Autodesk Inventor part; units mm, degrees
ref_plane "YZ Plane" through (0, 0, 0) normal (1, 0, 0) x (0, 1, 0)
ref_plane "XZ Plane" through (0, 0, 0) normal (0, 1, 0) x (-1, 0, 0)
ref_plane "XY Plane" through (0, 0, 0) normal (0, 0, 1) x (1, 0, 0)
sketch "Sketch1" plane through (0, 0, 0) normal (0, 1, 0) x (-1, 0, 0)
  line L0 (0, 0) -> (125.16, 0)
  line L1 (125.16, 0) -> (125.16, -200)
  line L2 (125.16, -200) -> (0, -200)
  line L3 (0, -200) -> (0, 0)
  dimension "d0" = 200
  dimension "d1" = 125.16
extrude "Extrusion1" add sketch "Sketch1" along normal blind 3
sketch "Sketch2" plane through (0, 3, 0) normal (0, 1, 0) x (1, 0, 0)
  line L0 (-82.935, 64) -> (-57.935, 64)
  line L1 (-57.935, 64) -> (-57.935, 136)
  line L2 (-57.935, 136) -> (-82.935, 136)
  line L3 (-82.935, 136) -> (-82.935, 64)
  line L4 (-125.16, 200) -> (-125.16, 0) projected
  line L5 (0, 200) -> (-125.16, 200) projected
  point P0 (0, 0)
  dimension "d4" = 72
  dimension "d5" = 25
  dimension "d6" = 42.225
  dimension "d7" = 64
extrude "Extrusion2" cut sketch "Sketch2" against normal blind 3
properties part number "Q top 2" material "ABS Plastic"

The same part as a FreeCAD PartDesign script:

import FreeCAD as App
import Part
import Sketcher
from FreeCAD import Vector
Q = App.Units.Quantity

doc = App.newDocument("Part")
body = doc.addObject("PartDesign::Body", "Body")

# Sketch on XZ plane
sketch1 = body.newObject("Sketcher::SketchObject", "Sketch")
sketch1.AttachmentSupport = (doc.getObject("XZ_Plane"), [""])
sketch1.MapMode = "FlatFace"
sketch1.addGeometry([
    Part.LineSegment(Vector(-125, 0, 0), Vector(0, 0, 0)),
    Part.LineSegment(Vector(0, 0, 0), Vector(0, -200, 0)),
    Part.LineSegment(Vector(0, -200, 0), Vector(-125, -200, 0)),
    Part.LineSegment(Vector(-125, -200, 0), Vector(-125, 0, 0)),
], False)
sketch1.addConstraint([
    Sketcher.Constraint("Coincident", 0, 2, 1, 1),
    Sketcher.Constraint("Coincident", 1, 2, 2, 1),
    Sketcher.Constraint("Coincident", 2, 2, 3, 1),
    Sketcher.Constraint("Coincident", 3, 2, 0, 1),
    Sketcher.Constraint("Horizontal", 0),
    Sketcher.Constraint("Vertical", 1),
    Sketcher.Constraint("Horizontal", 2),
    Sketcher.Constraint("Vertical", 3),
    Sketcher.Constraint("Coincident", 0, 2, -1, 1),
    Sketcher.Constraint("DistanceY", 1, 2, 1, 1, Q("200 mm")),
    Sketcher.Constraint("DistanceX", 0, 1, 0, 2, Q("125.16 mm")),
])
pad1 = body.newObject("PartDesign::Pad", "Pad")
pad1.Profile = sketch1
pad1.Length = 3
pad1.Reversed = True

# Sketch on XZ plane
sketch2 = body.newObject("Sketcher::SketchObject", "Sketch001")
sketch2.AttachmentSupport = (doc.getObject("XZ_Plane"), [""])
sketch2.MapMode = "FlatFace"
sketch2.AttachmentOffset = App.Placement(Vector(0, 0, -3), App.Rotation())
sketch2.addGeometry([
    Part.LineSegment(Vector(-83, -136, 0), Vector(-83, -64, 0)),
    Part.LineSegment(Vector(-83, -64, 0), Vector(-58, -64, 0)),
    Part.LineSegment(Vector(-58, -64, 0), Vector(-58, -136, 0)),
    Part.LineSegment(Vector(-58, -136, 0), Vector(-83, -136, 0)),
], False)
sketch2.addConstraint([
    Sketcher.Constraint("Coincident", 0, 2, 1, 1),
    Sketcher.Constraint("Coincident", 1, 2, 2, 1),
    Sketcher.Constraint("Coincident", 2, 2, 3, 1),
    Sketcher.Constraint("Coincident", 3, 2, 0, 1),
    Sketcher.Constraint("Vertical", 0),
    Sketcher.Constraint("Horizontal", 1),
    Sketcher.Constraint("Vertical", 2),
    Sketcher.Constraint("Horizontal", 3),
    Sketcher.Constraint("DistanceX", 1, 1, 1, 2, Q("25 mm")),
    Sketcher.Constraint("DistanceY", 0, 1, 0, 2, Q("72 mm")),
    Sketcher.Constraint("DistanceY", 0, 2, -1, 1, Q("64 mm")),
    Sketcher.Constraint("DistanceX", 0, 2, -1, 1, Q("82.935 mm")),
])
pocket1 = body.newObject("PartDesign::Pocket", "Pocket")
pocket1.Profile = sketch2
pocket1.Length = 3
pocket1.Reversed = True

doc.recompute()
